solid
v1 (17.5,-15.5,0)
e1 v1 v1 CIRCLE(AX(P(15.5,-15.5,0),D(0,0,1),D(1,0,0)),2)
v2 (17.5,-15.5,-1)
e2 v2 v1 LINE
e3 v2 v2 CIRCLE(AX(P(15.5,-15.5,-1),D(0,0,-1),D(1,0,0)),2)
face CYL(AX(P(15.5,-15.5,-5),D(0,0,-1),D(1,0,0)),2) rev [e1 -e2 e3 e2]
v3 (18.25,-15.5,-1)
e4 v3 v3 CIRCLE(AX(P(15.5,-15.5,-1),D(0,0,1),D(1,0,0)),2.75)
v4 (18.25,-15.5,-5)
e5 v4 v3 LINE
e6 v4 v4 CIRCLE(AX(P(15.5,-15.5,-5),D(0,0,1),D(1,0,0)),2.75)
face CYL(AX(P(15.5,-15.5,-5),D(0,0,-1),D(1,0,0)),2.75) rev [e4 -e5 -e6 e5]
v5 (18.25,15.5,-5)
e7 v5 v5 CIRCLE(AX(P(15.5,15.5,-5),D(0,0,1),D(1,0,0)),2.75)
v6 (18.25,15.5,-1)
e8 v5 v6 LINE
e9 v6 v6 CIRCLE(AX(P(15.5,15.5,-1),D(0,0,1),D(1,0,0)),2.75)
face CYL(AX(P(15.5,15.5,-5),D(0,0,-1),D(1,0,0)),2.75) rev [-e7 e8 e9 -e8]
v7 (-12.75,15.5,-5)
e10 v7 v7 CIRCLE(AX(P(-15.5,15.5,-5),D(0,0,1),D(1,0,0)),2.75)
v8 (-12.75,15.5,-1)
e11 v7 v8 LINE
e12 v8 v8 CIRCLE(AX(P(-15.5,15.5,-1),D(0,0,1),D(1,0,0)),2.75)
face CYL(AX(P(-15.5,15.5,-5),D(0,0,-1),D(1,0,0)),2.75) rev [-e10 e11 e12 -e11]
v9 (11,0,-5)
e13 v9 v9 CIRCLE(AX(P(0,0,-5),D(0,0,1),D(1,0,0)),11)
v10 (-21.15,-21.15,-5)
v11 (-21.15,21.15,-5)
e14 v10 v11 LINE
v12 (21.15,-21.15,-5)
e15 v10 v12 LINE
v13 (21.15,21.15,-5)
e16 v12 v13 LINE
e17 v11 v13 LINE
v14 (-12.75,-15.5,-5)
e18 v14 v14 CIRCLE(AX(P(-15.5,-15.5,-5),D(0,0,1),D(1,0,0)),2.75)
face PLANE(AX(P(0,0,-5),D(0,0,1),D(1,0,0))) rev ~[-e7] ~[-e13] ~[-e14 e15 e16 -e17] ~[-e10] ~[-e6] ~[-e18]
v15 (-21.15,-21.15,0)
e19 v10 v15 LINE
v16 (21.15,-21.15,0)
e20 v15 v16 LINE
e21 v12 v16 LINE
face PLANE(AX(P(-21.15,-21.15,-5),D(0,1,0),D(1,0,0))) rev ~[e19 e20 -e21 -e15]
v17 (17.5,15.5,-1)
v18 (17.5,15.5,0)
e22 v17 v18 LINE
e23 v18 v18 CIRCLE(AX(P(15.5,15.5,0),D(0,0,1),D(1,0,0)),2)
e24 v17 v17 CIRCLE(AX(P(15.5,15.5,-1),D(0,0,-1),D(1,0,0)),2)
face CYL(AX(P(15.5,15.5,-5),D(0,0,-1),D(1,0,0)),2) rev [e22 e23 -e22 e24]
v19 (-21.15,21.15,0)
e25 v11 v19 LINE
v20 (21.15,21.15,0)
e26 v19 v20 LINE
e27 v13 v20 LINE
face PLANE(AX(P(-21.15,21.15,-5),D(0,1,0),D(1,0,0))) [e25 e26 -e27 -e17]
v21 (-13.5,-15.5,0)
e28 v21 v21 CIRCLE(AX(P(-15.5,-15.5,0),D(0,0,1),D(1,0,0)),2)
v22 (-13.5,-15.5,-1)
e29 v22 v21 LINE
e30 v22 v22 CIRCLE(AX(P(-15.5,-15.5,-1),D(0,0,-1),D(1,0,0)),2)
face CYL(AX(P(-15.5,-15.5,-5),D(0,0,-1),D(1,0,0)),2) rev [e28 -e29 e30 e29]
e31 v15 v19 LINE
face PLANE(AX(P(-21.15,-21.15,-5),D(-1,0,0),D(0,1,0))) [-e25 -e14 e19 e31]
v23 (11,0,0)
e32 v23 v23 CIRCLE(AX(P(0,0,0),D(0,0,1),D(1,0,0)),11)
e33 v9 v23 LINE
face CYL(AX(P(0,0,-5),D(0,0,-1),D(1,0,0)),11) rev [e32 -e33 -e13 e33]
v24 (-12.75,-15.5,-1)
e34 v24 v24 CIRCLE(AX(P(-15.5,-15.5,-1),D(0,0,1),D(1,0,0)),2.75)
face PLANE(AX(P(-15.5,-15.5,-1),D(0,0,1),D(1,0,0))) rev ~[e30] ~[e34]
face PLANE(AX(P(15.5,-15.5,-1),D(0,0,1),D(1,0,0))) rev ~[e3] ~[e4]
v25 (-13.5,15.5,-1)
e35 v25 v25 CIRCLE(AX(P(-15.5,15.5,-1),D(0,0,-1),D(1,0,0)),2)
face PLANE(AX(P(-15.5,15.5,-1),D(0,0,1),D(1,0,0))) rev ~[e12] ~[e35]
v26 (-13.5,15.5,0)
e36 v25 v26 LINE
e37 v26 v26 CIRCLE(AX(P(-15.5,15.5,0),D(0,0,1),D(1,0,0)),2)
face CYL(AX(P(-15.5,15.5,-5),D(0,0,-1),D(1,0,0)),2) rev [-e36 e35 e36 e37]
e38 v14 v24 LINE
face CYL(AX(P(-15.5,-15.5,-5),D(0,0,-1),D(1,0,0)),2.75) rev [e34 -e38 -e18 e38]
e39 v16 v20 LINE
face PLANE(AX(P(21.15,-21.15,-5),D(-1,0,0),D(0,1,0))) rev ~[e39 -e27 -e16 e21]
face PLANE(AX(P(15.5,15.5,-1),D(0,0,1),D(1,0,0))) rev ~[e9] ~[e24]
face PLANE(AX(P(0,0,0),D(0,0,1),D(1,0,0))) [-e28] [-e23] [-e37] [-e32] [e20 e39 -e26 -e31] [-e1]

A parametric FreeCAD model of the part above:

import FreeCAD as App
import Part
import Sketcher
from FreeCAD import Vector


def add_polygon(sketch, points):
    """Adds a closed chain of lines whose ends are joined by coincident constraints."""
    first, n = sketch.GeometryCount, len(points)
    for a, b in zip(points, points[1:] + points[:1]):
        sketch.addGeometry(Part.LineSegment(App.Vector(*a, 0), App.Vector(*b, 0)), False)
    for i in range(n):
        sketch.addConstraint(Sketcher.Constraint("Coincident", first + i, 2, first + (i + 1) % n, 1))

doc = App.newDocument("Part")
params = doc.addObject("Spreadsheet::Sheet", "Params")
for row, (alias, value) in enumerate([
    ("sketch1_diameter", "4 mm"),
    ("pad1_length", "5 mm"),
    ("sketch2_diameter", "5.5 mm"),
    ("pad2_length", "4 mm"),
    ("sketch3_diameter", "4 mm"),
    ("pad3_length", "5 mm"),
    ("sketch4_diameter", "5.5 mm"),
    ("pad4_length", "4 mm"),
    ("sketch5_diameter", "4 mm"),
    ("pad5_length", "5 mm"),
    ("sketch6_diameter", "5.5 mm"),
    ("pad6_length", "4 mm"),
    ("sketch7_diameter", "4 mm"),
    ("pad7_length", "5 mm"),
    ("sketch8_diameter", "5.5 mm"),
    ("pad8_length", "4 mm"),
    ("sketch9_diameter", "22 mm"),
    ("pad9_length", "5 mm"),
    ("sketch10_width", "42.3 mm"),
    ("pad10_length", "5 mm"),
], start=1):
    params.set(f"A{row}", alias)
    params.set(f"B{row}", "=" + value)
    params.setAlias(f"B{row}", alias)

body = doc.addObject("PartDesign::Body", "Body")

sketch1 = body.newObject("Sketcher::SketchObject", "Sketch")
sketch1.AttachmentSupport = (doc.getObject("XY_Plane"), [""])
sketch1.MapMode = "FlatFace"
sketch1.AttachmentOffset = App.Placement(Vector(0, 0, -5), App.Rotation())
sketch1.addGeometry(Part.Circle(Vector(0, 0, 0), Vector(0, 0, 1), 2), False)
sketch1.addConstraint([
    Sketcher.Constraint("Coincident", 0, 3, -1, 1),
    Sketcher.Constraint("Diameter", 0, 4.0),
])
sketch1.setExpression("Constraints[1]", "Params.sketch1_diameter")
pad1 = body.newObject("PartDesign::Pad", "Pad")
pad1.Profile = sketch1
pad1.setExpression("Length", "Params.pad1_length")
body2 = doc.addObject("PartDesign::Body", "Body001")

sketch2 = body2.newObject("Sketcher::SketchObject", "Sketch001")
sketch2.AttachmentSupport = (doc.getObject("XY_Plane001"), [""])
sketch2.MapMode = "FlatFace"
sketch2.AttachmentOffset = App.Placement(Vector(0, 0, -5), App.Rotation())
sketch2.addGeometry(Part.Circle(Vector(0, 0, 0), Vector(0, 0, 1), 2.8), False)
sketch2.addConstraint([
    Sketcher.Constraint("Coincident", 0, 3, -1, 1),
    Sketcher.Constraint("Diameter", 0, 5.5),
])
sketch2.setExpression("Constraints[1]", "Params.sketch2_diameter")
pad2 = body2.newObject("PartDesign::Pad", "Pad001")
pad2.Profile = sketch2
pad2.setExpression("Length", "Params.pad2_length")
doc.recompute()

boolean = body2.newObject("PartDesign::Boolean", "Boolean")
boolean.Type = "Fuse"
boolean.addObjects([body])
body3 = doc.addObject("PartDesign::Body", "Body002")
doc.recompute()

body2.Placement = App.Placement(Vector(-15.5, 15.5, 0), App.Rotation(Vector(0, 0, 1), 0))
boolean2 = body3.newObject("PartDesign::Boolean", "Boolean001")
boolean2.Type = "Fuse"
boolean2.addObjects([body2])
body4 = doc.addObject("PartDesign::Body", "Body003")

sketch3 = body4.newObject("Sketcher::SketchObject", "Sketch002")
sketch3.AttachmentSupport = (doc.getObject("XY_Plane003"), [""])
sketch3.MapMode = "FlatFace"
sketch3.AttachmentOffset = App.Placement(Vector(0, 0, -5), App.Rotation())
sketch3.addGeometry(Part.Circle(Vector(0, 0, 0), Vector(0, 0, 1), 2), False)
sketch3.addConstraint([
    Sketcher.Constraint("Coincident", 0, 3, -1, 1),
    Sketcher.Constraint("Diameter", 0, 4.0),
])
sketch3.setExpression("Constraints[1]", "Params.sketch3_diameter")
pad3 = body4.newObject("PartDesign::Pad", "Pad002")
pad3.Profile = sketch3
pad3.setExpression("Length", "Params.pad3_length")
body5 = doc.addObject("PartDesign::Body", "Body004")

sketch4 = body5.newObject("Sketcher::SketchObject", "Sketch003")
sketch4.AttachmentSupport = (doc.getObject("XY_Plane004"), [""])
sketch4.MapMode = "FlatFace"
sketch4.AttachmentOffset = App.Placement(Vector(0, 0, -5), App.Rotation())
sketch4.addGeometry(Part.Circle(Vector(0, 0, 0), Vector(0, 0, 1), 2.8), False)
sketch4.addConstraint([
    Sketcher.Constraint("Coincident", 0, 3, -1, 1),
    Sketcher.Constraint("Diameter", 0, 5.5),
])
sketch4.setExpression("Constraints[1]", "Params.sketch4_diameter")
pad4 = body5.newObject("PartDesign::Pad", "Pad003")
pad4.Profile = sketch4
pad4.setExpression("Length", "Params.pad4_length")
doc.recompute()

boolean3 = body5.newObject("PartDesign::Boolean", "Boolean002")
boolean3.Type = "Fuse"
boolean3.addObjects([body4])
body6 = doc.addObject("PartDesign::Body", "Body005")
doc.recompute()

body5.Placement = App.Placement(Vector(15.5, -15.5, 0), App.Rotation(Vector(0, 0, 1), 0))
boolean4 = body6.newObject("PartDesign::Boolean", "Boolean003")
boolean4.Type = "Fuse"
boolean4.addObjects([body5])
body7 = doc.addObject("PartDesign::Body", "Body006")

sketch5 = body7.newObject("Sketcher::SketchObject", "Sketch004")
sketch5.AttachmentSupport = (doc.getObject("XY_Plane006"), [""])
sketch5.MapMode = "FlatFace"
sketch5.AttachmentOffset = App.Placement(Vector(0, 0, -5), App.Rotation())
sketch5.addGeometry(Part.Circle(Vector(0, 0, 0), Vector(0, 0, 1), 2), False)
sketch5.addConstraint([
    Sketcher.Constraint("Coincident", 0, 3, -1, 1),
    Sketcher.Constraint("Diameter", 0, 4.0),
])
sketch5.setExpression("Constraints[1]", "Params.sketch5_diameter")
pad5 = body7.newObject("PartDesign::Pad", "Pad004")
pad5.Profile = sketch5
pad5.setExpression("Length", "Params.pad5_length")
body8 = doc.addObject("PartDesign::Body", "Body007")

sketch6 = body8.newObject("Sketcher::SketchObject", "Sketch005")
sketch6.AttachmentSupport = (doc.getObject("XY_Plane007"), [""])
sketch6.MapMode = "FlatFace"
sketch6.AttachmentOffset = App.Placement(Vector(0, 0, -5), App.Rotation())
sketch6.addGeometry(Part.Circle(Vector(0, 0, 0), Vector(0, 0, 1), 2.8), False)
sketch6.addConstraint([
    Sketcher.Constraint("Coincident", 0, 3, -1, 1),
    Sketcher.Constraint("Diameter", 0, 5.5),
])
sketch6.setExpression("Constraints[1]", "Params.sketch6_diameter")
pad6 = body8.newObject("PartDesign::Pad", "Pad005")
pad6.Profile = sketch6
pad6.setExpression("Length", "Params.pad6_length")
doc.recompute()

boolean5 = body8.newObject("PartDesign::Boolean", "Boolean004")
boolean5.Type = "Fuse"
boolean5.addObjects([body7])
body9 = doc.addObject("PartDesign::Body", "Body008")
doc.recompute()

body8.Placement = App.Placement(Vector(-15.5, -15.5, 0), App.Rotation(Vector(0, 0, 1), 0))
boolean6 = body9.newObject("PartDesign::Boolean", "Boolean005")
boolean6.Type = "Fuse"
boolean6.addObjects([body8])
body10 = doc.addObject("PartDesign::Body", "Body009")

sketch7 = body10.newObject("Sketcher::SketchObject", "Sketch006")
sketch7.AttachmentSupport = (doc.getObject("XY_Plane009"), [""])
sketch7.MapMode = "FlatFace"
sketch7.AttachmentOffset = App.Placement(Vector(0, 0, -5), App.Rotation())
sketch7.addGeometry(Part.Circle(Vector(0, 0, 0), Vector(0, 0, 1), 2), False)
sketch7.addConstraint([
    Sketcher.Constraint("Coincident", 0, 3, -1, 1),
    Sketcher.Constraint("Diameter", 0, 4.0),
])
sketch7.setExpression("Constraints[1]", "Params.sketch7_diameter")
pad7 = body10.newObject("PartDesign::Pad", "Pad006")
pad7.Profile = sketch7
pad7.setExpression("Length", "Params.pad7_length")
body11 = doc.addObject("PartDesign::Body", "Body010")

sketch8 = body11.newObject("Sketcher::SketchObject", "Sketch007")
sketch8.AttachmentSupport = (doc.getObject("XY_Plane010"), [""])
sketch8.MapMode = "FlatFace"
sketch8.AttachmentOffset = App.Placement(Vector(0, 0, -5), App.Rotation())
sketch8.addGeometry(Part.Circle(Vector(0, 0, 0), Vector(0, 0, 1), 2.8), False)
sketch8.addConstraint([
    Sketcher.Constraint("Coincident", 0, 3, -1, 1),
    Sketcher.Constraint("Diameter", 0, 5.5),
])
sketch8.setExpression("Constraints[1]", "Params.sketch8_diameter")
pad8 = body11.newObject("PartDesign::Pad", "Pad007")
pad8.Profile = sketch8
pad8.setExpression("Length", "Params.pad8_length")
doc.recompute()

boolean7 = body11.newObject("PartDesign::Boolean", "Boolean006")
boolean7.Type = "Fuse"
boolean7.addObjects([body10])
body12 = doc.addObject("PartDesign::Body", "Body011")
body12.AllowCompound = True
doc.recompute()

body11.Placement = App.Placement(Vector(15.5, 15.5, 0), App.Rotation(Vector(0, 0, 1), 0))
boolean8 = body12.newObject("PartDesign::Boolean", "Boolean007")
boolean8.Type = "Fuse"
boolean8.addObjects([body11])
doc.recompute()

boolean9 = body12.newObject("PartDesign::Boolean", "Boolean008")
boolean9.Type = "Fuse"
boolean9.addObjects([body3])
doc.recompute()

boolean10 = body12.newObject("PartDesign::Boolean", "Boolean009")
boolean10.Type = "Fuse"
boolean10.addObjects([body6])
doc.recompute()

boolean11 = body12.newObject("PartDesign::Boolean", "Boolean010")
boolean11.Type = "Fuse"
boolean11.addObjects([body9])
body13 = doc.addObject("PartDesign::Body", "Body012")

sketch9 = body13.newObject("Sketcher::SketchObject", "Sketch008")
sketch9.AttachmentSupport = (doc.getObject("XY_Plane012"), [""])
sketch9.MapMode = "FlatFace"
sketch9.AttachmentOffset = App.Placement(Vector(0, 0, -5), App.Rotation())
sketch9.addGeometry(Part.Circle(Vector(0, 0, 0), Vector(0, 0, 1), 11), False)
sketch9.addConstraint([
    Sketcher.Constraint("Coincident", 0, 3, -1, 1),
    Sketcher.Constraint("Diameter", 0, 22.0),
])
sketch9.setExpression("Constraints[1]", "Params.sketch9_diameter")
pad9 = body13.newObject("PartDesign::Pad", "Pad008")
pad9.Profile = sketch9
pad9.setExpression("Length", "Params.pad9_length")
body14 = doc.addObject("PartDesign::Body", "Body013")

sketch10 = body14.newObject("Sketcher::SketchObject", "Sketch009")
sketch10.AttachmentSupport = (doc.getObject("XY_Plane013"), [""])
sketch10.MapMode = "FlatFace"
sketch10.AttachmentOffset = App.Placement(Vector(0, 0, -5), App.Rotation())
add_polygon(sketch10, [(-21, 21), (-21, -21), (21, -21), (21, 21)])
sketch10.addConstraint([
    Sketcher.Constraint("Vertical", 0),
    Sketcher.Constraint("Horizontal", 1),
    Sketcher.Constraint("Vertical", 2),
    Sketcher.Constraint("Horizontal", 3),
    Sketcher.Constraint("Symmetric", 0, 2, 2, 2, -1, 1),
    Sketcher.Constraint("Equal", 3, 0),
    Sketcher.Constraint("DistanceX", 1, 1, 1, 2, 42.3),
])
sketch10.setExpression("Constraints[10]", "Params.sketch10_width")
pad10 = body14.newObject("PartDesign::Pad", "Pad009")
pad10.Profile = sketch10
pad10.setExpression("Length", "Params.pad10_length")
doc.recompute()

boolean12 = body14.newObject("PartDesign::Boolean", "Boolean011")
boolean12.Type = "Cut"
boolean12.addObjects([body13])
doc.recompute()

boolean13 = body14.newObject("PartDesign::Boolean", "Boolean012")
boolean13.Type = "Cut"
boolean13.addObjects([body12])

doc.recompute()
